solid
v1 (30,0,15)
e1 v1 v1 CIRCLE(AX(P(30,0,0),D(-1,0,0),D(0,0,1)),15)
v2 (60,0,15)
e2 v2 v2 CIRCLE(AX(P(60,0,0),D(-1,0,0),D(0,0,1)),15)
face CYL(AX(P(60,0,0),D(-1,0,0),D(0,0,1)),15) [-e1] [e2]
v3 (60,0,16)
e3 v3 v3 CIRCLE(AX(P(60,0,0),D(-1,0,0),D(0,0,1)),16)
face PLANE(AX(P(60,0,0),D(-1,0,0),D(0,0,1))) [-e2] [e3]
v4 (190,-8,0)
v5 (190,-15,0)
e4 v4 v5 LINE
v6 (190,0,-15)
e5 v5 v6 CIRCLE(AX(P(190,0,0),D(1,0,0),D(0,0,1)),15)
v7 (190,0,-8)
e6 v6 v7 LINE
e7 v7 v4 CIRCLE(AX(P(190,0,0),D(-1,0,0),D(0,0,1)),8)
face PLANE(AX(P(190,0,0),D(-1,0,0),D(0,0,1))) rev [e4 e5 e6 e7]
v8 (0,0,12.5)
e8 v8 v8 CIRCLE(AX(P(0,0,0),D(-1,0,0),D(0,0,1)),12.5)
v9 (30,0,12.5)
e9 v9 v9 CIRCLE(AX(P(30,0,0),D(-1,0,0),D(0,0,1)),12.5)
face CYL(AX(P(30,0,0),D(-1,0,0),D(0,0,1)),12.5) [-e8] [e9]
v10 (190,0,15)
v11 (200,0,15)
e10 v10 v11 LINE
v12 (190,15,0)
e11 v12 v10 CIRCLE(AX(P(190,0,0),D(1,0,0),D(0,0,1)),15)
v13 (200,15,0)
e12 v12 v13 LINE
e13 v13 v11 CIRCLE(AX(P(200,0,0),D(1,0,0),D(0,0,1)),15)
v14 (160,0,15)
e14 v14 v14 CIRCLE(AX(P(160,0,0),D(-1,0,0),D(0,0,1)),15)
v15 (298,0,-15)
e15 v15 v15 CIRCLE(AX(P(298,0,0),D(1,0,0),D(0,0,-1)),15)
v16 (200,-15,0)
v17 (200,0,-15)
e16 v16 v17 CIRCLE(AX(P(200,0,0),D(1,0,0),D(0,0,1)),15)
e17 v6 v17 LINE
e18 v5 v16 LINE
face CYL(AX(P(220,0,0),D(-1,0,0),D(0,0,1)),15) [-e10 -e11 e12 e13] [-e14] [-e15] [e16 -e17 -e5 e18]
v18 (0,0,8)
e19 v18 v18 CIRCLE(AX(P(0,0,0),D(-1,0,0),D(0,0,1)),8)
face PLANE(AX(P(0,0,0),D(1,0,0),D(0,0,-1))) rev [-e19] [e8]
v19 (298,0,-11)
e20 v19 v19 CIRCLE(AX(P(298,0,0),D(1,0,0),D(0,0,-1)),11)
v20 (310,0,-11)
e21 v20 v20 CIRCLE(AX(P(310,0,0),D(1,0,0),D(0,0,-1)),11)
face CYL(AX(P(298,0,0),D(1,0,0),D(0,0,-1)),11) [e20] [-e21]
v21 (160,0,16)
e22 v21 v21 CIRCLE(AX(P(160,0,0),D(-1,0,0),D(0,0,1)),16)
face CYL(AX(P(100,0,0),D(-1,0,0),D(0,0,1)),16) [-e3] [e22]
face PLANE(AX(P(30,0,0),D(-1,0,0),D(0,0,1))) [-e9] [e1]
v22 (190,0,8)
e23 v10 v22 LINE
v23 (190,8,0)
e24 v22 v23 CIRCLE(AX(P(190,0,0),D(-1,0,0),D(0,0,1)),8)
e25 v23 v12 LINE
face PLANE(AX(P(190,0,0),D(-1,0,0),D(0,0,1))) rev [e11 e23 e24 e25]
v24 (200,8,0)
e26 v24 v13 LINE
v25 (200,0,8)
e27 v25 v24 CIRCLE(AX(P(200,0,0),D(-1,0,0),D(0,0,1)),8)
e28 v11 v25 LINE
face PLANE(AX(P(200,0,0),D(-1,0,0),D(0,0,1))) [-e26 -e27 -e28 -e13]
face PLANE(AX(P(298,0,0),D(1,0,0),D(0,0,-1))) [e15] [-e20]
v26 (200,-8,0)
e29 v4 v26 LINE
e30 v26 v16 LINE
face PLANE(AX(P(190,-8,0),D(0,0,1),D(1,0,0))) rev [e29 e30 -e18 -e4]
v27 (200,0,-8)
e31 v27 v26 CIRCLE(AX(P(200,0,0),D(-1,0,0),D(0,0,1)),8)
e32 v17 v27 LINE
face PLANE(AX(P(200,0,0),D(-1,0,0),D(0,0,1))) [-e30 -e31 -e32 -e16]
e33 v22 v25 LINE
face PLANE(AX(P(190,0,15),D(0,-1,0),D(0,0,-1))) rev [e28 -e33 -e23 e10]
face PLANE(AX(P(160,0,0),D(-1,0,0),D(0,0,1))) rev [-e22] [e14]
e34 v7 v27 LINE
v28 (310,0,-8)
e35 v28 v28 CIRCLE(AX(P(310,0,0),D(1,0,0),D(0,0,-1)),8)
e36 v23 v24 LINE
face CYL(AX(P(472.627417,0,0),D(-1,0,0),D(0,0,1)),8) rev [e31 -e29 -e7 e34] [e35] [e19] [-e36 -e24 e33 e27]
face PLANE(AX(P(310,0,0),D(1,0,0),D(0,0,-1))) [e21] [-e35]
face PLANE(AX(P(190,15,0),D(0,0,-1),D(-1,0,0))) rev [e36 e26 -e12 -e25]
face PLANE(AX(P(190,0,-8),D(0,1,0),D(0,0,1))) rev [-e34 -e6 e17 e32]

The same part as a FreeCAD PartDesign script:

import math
import FreeCAD as App
import Part
import Sketcher

V = App.Vector
Q = App.Units.Quantity

doc = App.newDocument("Part")
body = doc.addObject("PartDesign::Body", "Body")

sketch1 = body.newObject("Sketcher::SketchObject", "Sketch")
sketch1.AttachmentSupport = (doc.getObject("YZ_Plane"), [""])
sketch1.MapMode = "FlatFace"
sketch1.addGeometry(Part.Circle(V(0, 0, 0), V(0, 0, 1), 16), False)
sketch1.addConstraint(Sketcher.Constraint("Coincident", 0, 3, -1, 1))
sketch1.addConstraint(Sketcher.Constraint("Diameter", 0, Q("32 mm")))
pad1 = body.newObject("PartDesign::Pad", "Pad")
pad1.Profile = sketch1
pad1.Length = 100

sketch2 = body.newObject("Sketcher::SketchObject", "Sketch001")
sketch2.AttachmentSupport = (doc.getObject("YZ_Plane"), [""])
sketch2.MapMode = "FlatFace"
sketch2.AttachmentOffset = App.Placement(V(0, 0, 82), App.Rotation())
sketch2.addGeometry(Part.Circle(V(0, 0, 0), V(0, 0, 1), 16), False)
sketch2.addConstraint(Sketcher.Constraint("Coincident", 0, 3, -1, 1))
sketch2.addConstraint(Sketcher.Constraint("Diameter", 0, Q("32 mm")))
pad2 = body.newObject("PartDesign::Pad", "Pad001")
pad2.Profile = sketch2
pad2.Length = 18

sketch3 = body.newObject("Sketcher::SketchObject", "Sketch002")
sketch3.AttachmentSupport = (doc.getObject("YZ_Plane"), [""])
sketch3.MapMode = "FlatFace"
sketch3.AttachmentOffset = App.Placement(V(0, 0, 100), App.Rotation())
sketch3.addGeometry(Part.Circle(V(0, 0, 0), V(0, 0, 1), 16), False)
sketch3.addConstraint(Sketcher.Constraint("Coincident", 0, 3, -1, 1))
sketch3.addConstraint(Sketcher.Constraint("Diameter", 0, Q("32 mm")))
pad3 = body.newObject("PartDesign::Pad", "Pad002")
pad3.Profile = sketch3
pad3.Length = 132

sketch4 = body.newObject("Sketcher::SketchObject", "Sketch003")
sketch4.AttachmentSupport = (doc.getObject("YZ_Plane"), [""])
sketch4.MapMode = "FlatFace"
sketch4.AttachmentOffset = App.Placement(V(0, 0, 232), App.Rotation())
sketch4.addGeometry(Part.Circle(V(0, 0, 0), V(0, 0, 1), 16), False)
sketch4.addConstraint(Sketcher.Constraint("Coincident", 0, 3, -1, 1))
sketch4.addConstraint(Sketcher.Constraint("Diameter", 0, Q("32 mm")))
pad4 = body.newObject("PartDesign::Pad", "Pad003")
pad4.Profile = sketch4
pad4.Length = 18

sketch5 = body.newObject("Sketcher::SketchObject", "Sketch004")
sketch5.AttachmentSupport = (doc.getObject("YZ_Plane"), [""])
sketch5.MapMode = "FlatFace"
sketch5.AttachmentOffset = App.Placement(V(0, 0, 250), App.Rotation())
sketch5.addGeometry(Part.Circle(V(0, 0, 0), V(0, 0, 1), 16), False)
sketch5.addConstraint(Sketcher.Constraint("Coincident", 0, 3, -1, 1))
sketch5.addConstraint(Sketcher.Constraint("Diameter", 0, Q("32 mm")))
pad5 = body.newObject("PartDesign::Pad", "Pad004")
pad5.Profile = sketch5
pad5.Length = 50

sketch6 = body.newObject("Sketcher::SketchObject", "Sketch005")
sketch6.AttachmentSupport = (doc.getObject("YZ_Plane"), [""])
sketch6.MapMode = "FlatFace"
sketch6.AttachmentOffset = App.Placement(V(0, 0, 300), App.Rotation())
sketch6.addGeometry(Part.Circle(V(0, 0, 0), V(0, 0, 1), 16), False)
sketch6.addConstraint(Sketcher.Constraint("Coincident", 0, 3, -1, 1))
sketch6.addConstraint(Sketcher.Constraint("Diameter", 0, Q("32 mm")))
pad6 = body.newObject("PartDesign::Pad", "Pad005")
pad6.Profile = sketch6
pad6.Length = 80

sketch7 = body.newObject("Sketcher::SketchObject", "Sketch006")
sketch7.AttachmentSupport = (doc.getObject("YZ_Plane"), [""])
sketch7.MapMode = "FlatFace"
sketch7.AttachmentOffset = App.Placement(V(0, 0, 380), App.Rotation())
sketch7.addGeometry(Part.Circle(V(0, 0, 0), V(0, 0, 1), 16), False)
sketch7.addConstraint(Sketcher.Constraint("Coincident", 0, 3, -1, 1))
sketch7.addConstraint(Sketcher.Constraint("Diameter", 0, Q("32 mm")))
pad7 = body.newObject("PartDesign::Pad", "Pad006")
pad7.Profile = sketch7
pad7.Length = 50

sketch8 = body.newObject("Sketcher::SketchObject", "Sketch007")
sketch8.AttachmentSupport = (doc.getObject("YZ_Plane"), [""])
sketch8.MapMode = "FlatFace"
sketch8.AttachmentOffset = App.Placement(V(0, 0, 430), App.Rotation())
sketch8.addGeometry(Part.Circle(V(0, 0, 0), V(0, 0, 1), 8), False)
sketch8.addConstraint(Sketcher.Constraint("Coincident", 0, 3, -1, 1))
sketch8.addConstraint(Sketcher.Constraint("Diameter", 0, Q("16 mm")))
pad8 = body.newObject("PartDesign::Pad", "Pad007")
pad8.Profile = sketch8
pad8.Length = 20

sketch9 = body.newObject("Sketcher::SketchObject", "Sketch008")
sketch9.AttachmentSupport = (doc.getObject("YZ_Plane"), [""])
sketch9.MapMode = "FlatFace"
sketch9.addGeometry(Part.Circle(V(0, 0, 0), V(0, 0, 1), 8), False)
sketch9.addConstraint(Sketcher.Constraint("Coincident", 0, 3, -1, 1))
sketch9.addConstraint(Sketcher.Constraint("Diameter", 0, Q("16 mm")))
pocket1 = body.newObject("PartDesign::Pocket", "Pocket")
pocket1.Profile = sketch9
pocket1.Length = 450
pocket1.Reversed = True

sketch10 = body.newObject("Sketcher::SketchObject", "Sketch009")
sketch10.AttachmentSupport = (doc.getObject("YZ_Plane"), [""])
sketch10.MapMode = "FlatFace"
sketch10.addGeometry(Part.Circle(V(0, 0, 0), V(0, 0, 1), 16), False)
sketch10.addGeometry(Part.Circle(V(0, 0, 0), V(0, 0, 1), 12), False)
sketch10.addConstraint(Sketcher.Constraint("Coincident", 0, 3, -1, 1))
sketch10.addConstraint(Sketcher.Constraint("Coincident", 1, 3, -1, 1))
sketch10.addConstraint(Sketcher.Constraint("Diameter", 0, Q("32 mm")))
sketch10.addConstraint(Sketcher.Constraint("Diameter", 1, Q("25 mm")))
pocket2 = body.newObject("PartDesign::Pocket", "Pocket001")
pocket2.Profile = sketch10
pocket2.Length = 30
pocket2.Reversed = True

sketch11 = body.newObject("Sketcher::SketchObject", "Sketch010")
sketch11.AttachmentSupport = (doc.getObject("YZ_Plane"), [""])
sketch11.MapMode = "FlatFace"
sketch11.AttachmentOffset = App.Placement(V(0, 0, 30), App.Rotation())
sketch11.addGeometry(Part.Circle(V(0, 0, 0), V(0, 0, 1), 16), False)
sketch11.addGeometry(Part.Circle(V(0, 0, 0), V(0, 0, 1), 15), False)
sketch11.addConstraint(Sketcher.Constraint("Coincident", 0, 3, -1, 1))
sketch11.addConstraint(Sketcher.Constraint("Coincident", 1, 3, -1, 1))
sketch11.addConstraint(Sketcher.Constraint("Diameter", 0, Q("32 mm")))
sketch11.addConstraint(Sketcher.Constraint("Diameter", 1, Q("30 mm")))
pocket3 = body.newObject("PartDesign::Pocket", "Pocket002")
pocket3.Profile = sketch11
pocket3.Length = 30
pocket3.Reversed = True

sketch12 = body.newObject("Sketcher::SketchObject", "Sketch011")
sketch12.AttachmentSupport = (doc.getObject("YZ_Plane"), [""])
sketch12.MapMode = "FlatFace"
sketch12.AttachmentOffset = App.Placement(V(0, 0, 160), App.Rotation())
sketch12.addGeometry(Part.Circle(V(0, 0, 0), V(0, 0, 1), 16), False)
sketch12.addGeometry(Part.Circle(V(0, 0, 0), V(0, 0, 1), 15), False)
sketch12.addConstraint(Sketcher.Constraint("Coincident", 0, 3, -1, 1))
sketch12.addConstraint(Sketcher.Constraint("Coincident", 1, 3, -1, 1))
sketch12.addConstraint(Sketcher.Constraint("Diameter", 0, Q("32 mm")))
sketch12.addConstraint(Sketcher.Constraint("Diameter", 1, Q("30 mm")))
pocket4 = body.newObject("PartDesign::Pocket", "Pocket003")
pocket4.Profile = sketch12
pocket4.Length = 60
pocket4.Reversed = True

sketch13 = body.newObject("Sketcher::SketchObject", "Sketch012")
sketch13.AttachmentSupport = (doc.getObject("YZ_Plane"), [""])
sketch13.MapMode = "FlatFace"
sketch13.AttachmentOffset = App.Placement(V(0, 0, 230), App.Rotation())
sketch13.addGeometry(Part.Circle(V(0, 0, 0), V(0, 0, 1), 16), False)
sketch13.addConstraint(Sketcher.Constraint("Coincident", 0, 3, -1, 1))
sketch13.addConstraint(Sketcher.Constraint("Diameter", 0, Q("32 mm")))
pocket5 = body.newObject("PartDesign::Pocket", "Pocket004")
pocket5.Profile = sketch13
pocket5.Length = 200
pocket5.Reversed = True

sketch14 = body.newObject("Sketcher::SketchObject", "Sketch013")
sketch14.AttachmentSupport = (doc.getObject("YZ_Plane"), [""])
sketch14.MapMode = "FlatFace"
sketch14.AttachmentOffset = App.Placement(V(0, 0, 210), App.Rotation())
sketch14.addGeometry(Part.Circle(V(0, 0, 0), V(0, 0, 1), 16), False)
sketch14.addGeometry(Part.Circle(V(0, 0, 0), V(0, 0, 1), 8), False)
sketch14.addConstraint(Sketcher.Constraint("Coincident", 0, 3, -1, 1))
sketch14.addConstraint(Sketcher.Constraint("Coincident", 1, 3, -1, 1))
sketch14.addConstraint(Sketcher.Constraint("Diameter", 0, Q("32 mm")))
sketch14.addConstraint(Sketcher.Constraint("Diameter", 1, Q("16 mm")))
pocket6 = body.newObject("PartDesign::Pocket", "Pocket005")
pocket6.Profile = sketch14
pocket6.Length = 20
pocket6.Reversed = True

sketch15 = body.newObject("Sketcher::SketchObject", "Sketch014")
sketch15.AttachmentSupport = (doc.getObject("YZ_Plane"), [""])
sketch15.MapMode = "FlatFace"
sketch15.AttachmentOffset = App.Placement(V(0, 0, 210), App.Rotation())
sketch15.addGeometry(Part.Circle(V(0, 0, 0), V(0, 0, 1), 15), False)
sketch15.addGeometry(Part.Circle(V(0, 0, 0), V(0, 0, 1), 8), False)
sketch15.addConstraint(Sketcher.Constraint("Coincident", 0, 3, -1, 1))
sketch15.addConstraint(Sketcher.Constraint("Coincident", 1, 3, -1, 1))
sketch15.addConstraint(Sketcher.Constraint("Diameter", 0, Q("30 mm")))
sketch15.addConstraint(Sketcher.Constraint("Diameter", 1, Q("16 mm")))
pad9 = body.newObject("PartDesign::Pad", "Pad008")
pad9.Profile = sketch15
pad9.Length = 100

sketch16 = body.newObject("Sketcher::SketchObject", "Sketch015")
sketch16.AttachmentSupport = (doc.getObject("YZ_Plane"), [""])
sketch16.MapMode = "FlatFace"
sketch16.AttachmentOffset = App.Placement(V(0, 0, 190), App.Rotation())
sketch16.addGeometry(Part.LineSegment(V(0, 15, 0), V(0, 8, 0)), False)
sketch16.addGeometry(Part.ArcOfCircle(Part.Circle(V(0, 0, 0), V(0, 0, 1), 8), math.radians(0), math.radians(90)), False)
sketch16.addGeometry(Part.LineSegment(V(8, 0, 0), V(15, 0, 0)), False)
sketch16.addGeometry(Part.ArcOfCircle(Part.Circle(V(0, 0, 0), V(0, 0, 1), 15), math.radians(0), math.radians(90)), False)
sketch16.addGeometry(Part.LineSegment(V(0, -15, 0), V(0, -8, 0)), False)
sketch16.addGeometry(Part.ArcOfCircle(Part.Circle(V(0, 0, 0), V(0, 0, 1), 8), math.radians(-180), math.radians(-90)), False)
sketch16.addGeometry(Part.LineSegment(V(-8, 0, 0), V(-15, 0, 0)), False)
sketch16.addGeometry(Part.ArcOfCircle(Part.Circle(V(0, 0, 0), V(0, 0, 1), 15), math.radians(180), math.radians(270)), False)
sketch16.addConstraint(Sketcher.Constraint("Coincident", 0, 2, 1, 2))
sketch16.addConstraint(Sketcher.Constraint("Coincident", 1, 1, 2, 1))
sketch16.addConstraint(Sketcher.Constraint("Coincident", 2, 2, 3, 1))
sketch16.addConstraint(Sketcher.Constraint("Coincident", 3, 2, 0, 1))
sketch16.addConstraint(Sketcher.Constraint("Coincident", 4, 2, 5, 2))
sketch16.addConstraint(Sketcher.Constraint("Coincident", 5, 1, 6, 1))
sketch16.addConstraint(Sketcher.Constraint("Coincident", 6, 2, 7, 1))
sketch16.addConstraint(Sketcher.Constraint("Coincident", 7, 2, 4, 1))
sketch16.addConstraint(Sketcher.Constraint("Vertical", 0))
sketch16.addConstraint(Sketcher.Constraint("Horizontal", 2))
sketch16.addConstraint(Sketcher.Constraint("Vertical", 4))
sketch16.addConstraint(Sketcher.Constraint("Horizontal", 6))
sketch16.addConstraint(Sketcher.Constraint("Coincident", 1, 3, -1, 1))
sketch16.addConstraint(Sketcher.Constraint("Coincident", 3, 3, -1, 1))
sketch16.addConstraint(Sketcher.Constraint("Coincident", 5, 3, -1, 1))
sketch16.addConstraint(Sketcher.Constraint("Coincident", 7, 3, -1, 1))
sketch16.addConstraint(Sketcher.Constraint("Equal", 1, 5))
sketch16.addConstraint(Sketcher.Constraint("Equal", 3, 7))
sketch16.addConstraint(Sketcher.Constraint("PointOnObject", 0, 2, -2))
sketch16.addConstraint(Sketcher.Constraint("PointOnObject", 1, 1, -1))
sketch16.addConstraint(Sketcher.Constraint("PointOnObject", 4, 2, -2))
sketch16.addConstraint(Sketcher.Constraint("PointOnObject", 5, 1, -1))
sketch16.addConstraint(Sketcher.Constraint("Radius", 1, Q("8 mm")))
sketch16.addConstraint(Sketcher.Constraint("Radius", 3, Q("15 mm")))
pocket7 = body.newObject("PartDesign::Pocket", "Pocket006")
pocket7.Profile = sketch16
pocket7.Length = 10
pocket7.Reversed = True

sketch17 = body.newObject("Sketcher::SketchObject", "Sketch016")
sketch17.AttachmentSupport = (doc.getObject("YZ_Plane"), [""])
sketch17.MapMode = "FlatFace"
sketch17.AttachmentOffset = App.Placement(V(0, 0, 298), App.Rotation())
sketch17.addGeometry(Part.Circle(V(0, 0, 0), V(0, 0, 1), 15), False)
sketch17.addGeometry(Part.Circle(V(0, 0, 0), V(0, 0, 1), 11), False)
sketch17.addConstraint(Sketcher.Constraint("Coincident", 0, 3, -1, 1))
sketch17.addConstraint(Sketcher.Constraint("Coincident", 1, 3, -1, 1))
sketch17.addConstraint(Sketcher.Constraint("Diameter", 0, Q("30 mm")))
sketch17.addConstraint(Sketcher.Constraint("Diameter", 1, Q("22 mm")))
pocket8 = body.newObject("PartDesign::Pocket", "Pocket007")
pocket8.Profile = sketch17
pocket8.Length = 12
pocket8.Reversed = True

doc.recompute()
